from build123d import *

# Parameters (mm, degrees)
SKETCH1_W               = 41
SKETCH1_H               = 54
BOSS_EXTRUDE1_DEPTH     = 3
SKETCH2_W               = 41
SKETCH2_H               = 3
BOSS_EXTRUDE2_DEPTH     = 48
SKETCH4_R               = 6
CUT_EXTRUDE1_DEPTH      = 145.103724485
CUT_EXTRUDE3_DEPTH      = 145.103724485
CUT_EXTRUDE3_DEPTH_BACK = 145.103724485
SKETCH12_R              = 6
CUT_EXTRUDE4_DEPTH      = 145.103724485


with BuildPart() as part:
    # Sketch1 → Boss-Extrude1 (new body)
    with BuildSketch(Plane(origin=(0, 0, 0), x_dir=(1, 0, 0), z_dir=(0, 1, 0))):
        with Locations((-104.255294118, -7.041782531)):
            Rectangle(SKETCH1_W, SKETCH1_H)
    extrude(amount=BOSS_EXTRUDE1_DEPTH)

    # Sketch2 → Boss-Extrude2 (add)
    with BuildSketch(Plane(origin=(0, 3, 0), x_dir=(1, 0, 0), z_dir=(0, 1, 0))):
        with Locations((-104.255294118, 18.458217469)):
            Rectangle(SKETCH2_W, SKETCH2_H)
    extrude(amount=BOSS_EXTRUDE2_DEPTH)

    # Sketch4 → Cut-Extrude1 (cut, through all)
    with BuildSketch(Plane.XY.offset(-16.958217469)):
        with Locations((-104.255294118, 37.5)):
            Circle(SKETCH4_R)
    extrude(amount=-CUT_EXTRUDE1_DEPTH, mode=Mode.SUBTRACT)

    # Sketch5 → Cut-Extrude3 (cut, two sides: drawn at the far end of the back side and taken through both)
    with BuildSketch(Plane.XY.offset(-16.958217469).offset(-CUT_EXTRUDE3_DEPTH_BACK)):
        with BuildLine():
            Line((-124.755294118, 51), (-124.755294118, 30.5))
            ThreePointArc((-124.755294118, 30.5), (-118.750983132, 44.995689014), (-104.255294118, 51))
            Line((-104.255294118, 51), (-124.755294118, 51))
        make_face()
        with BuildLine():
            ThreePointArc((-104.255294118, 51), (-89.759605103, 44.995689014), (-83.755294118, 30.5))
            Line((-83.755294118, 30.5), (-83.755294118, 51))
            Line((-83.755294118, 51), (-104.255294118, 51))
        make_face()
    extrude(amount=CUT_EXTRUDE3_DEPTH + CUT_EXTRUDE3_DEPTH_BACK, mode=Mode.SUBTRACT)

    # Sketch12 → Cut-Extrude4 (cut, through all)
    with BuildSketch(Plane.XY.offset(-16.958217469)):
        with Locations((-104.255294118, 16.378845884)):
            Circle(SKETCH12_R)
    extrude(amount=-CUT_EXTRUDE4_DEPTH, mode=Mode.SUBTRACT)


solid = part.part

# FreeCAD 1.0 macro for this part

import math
import FreeCAD as App
import Part
import Sketcher
from FreeCAD import Vector


def add_polygon(sketch, points):
    """Adds a closed chain of lines whose ends are joined by coincident constraints."""
    first, n = sketch.GeometryCount, len(points)
    for a, b in zip(points, points[1:] + points[:1]):
        sketch.addGeometry(Part.LineSegment(App.Vector(*a, 0), App.Vector(*b, 0)), False)
    for i in range(n):
        sketch.addConstraint(Sketcher.Constraint("Coincident", first + i, 2, first + (i + 1) % n, 1))

doc = App.newDocument("Part")
params = doc.addObject("Spreadsheet::Sheet", "Params")
for row, (alias, value) in enumerate([
    ("sketch1_width", "41 mm"),
    ("sketch1_height", "54 mm"),
    ("pad1_length", "3 mm"),
    ("sketch2_width", "41 mm"),
    ("sketch2_height", "3 mm"),
    ("pad2_length", "48 mm"),
    ("sketch3_diameter", "12 mm"),
    ("sketch4_radius", "20.5 mm"),
    ("sketch5_diameter", "12 mm"),
], start=1):
    params.set(f"A{row}", alias)
    params.set(f"B{row}", "=" + value)
    params.setAlias(f"B{row}", alias)

body = doc.addObject("PartDesign::Body", "Body")

sketch1 = doc.addObject("Sketcher::SketchObject", "Sketch")
body.addObject(sketch1)
sketch1.AttachmentSupport = (doc.XZ_Plane, [""])
sketch1.MapMode = "FlatFace"
add_polygon(sketch1, [(-125, -20), (-125, 34), (-84, 34), (-84, -20)])
sketch1.addConstraint([
    Sketcher.Constraint("Vertical", 0),
    Sketcher.Constraint("Horizontal", 1),
    Sketcher.Constraint("Vertical", 2),
    Sketcher.Constraint("Horizontal", 3),
    Sketcher.Constraint("DistanceX", 1, 1, 1, 2, 41.0),
    Sketcher.Constraint("DistanceY", 0, 1, 0, 2, 54.0),
    Sketcher.Constraint("DistanceX", 0, 2, -1, 1, 124.755294),
    Sketcher.Constraint("DistanceY", -1, 1, 0, 2, 34.041783),
])
sketch1.setExpression("Constraints[8]", "Params.sketch1_width")
sketch1.setExpression("Constraints[9]", "Params.sketch1_height")
pad1 = doc.addObject("PartDesign::Pad", "Pad")
body.addObject(pad1)
pad1.Profile = sketch1
pad1.setExpression("Length", "Params.pad1_length")
pad1.Reversed = True

sketch2 = doc.addObject("Sketcher::SketchObject", "Sketch001")
body.addObject(sketch2)
sketch2.AttachmentSupport = (doc.XZ_Plane, [""])
sketch2.MapMode = "FlatFace"
sketch2.AttachmentOffset = App.Placement(Vector(0, 0, -3), App.Rotation())
add_polygon(sketch2, [(-124.8, -20), (-124.8, -17), (-83.8, -17), (-83.8, -20)])
sketch2.addConstraint([
    Sketcher.Constraint("Vertical", 0),
    Sketcher.Constraint("Horizontal", 1),
    Sketcher.Constraint("Vertical", 2),
    Sketcher.Constraint("Horizontal", 3),
    Sketcher.Constraint("DistanceX", 1, 1, 1, 2, 41.0),
    Sketcher.Constraint("DistanceY", 0, 1, 0, 2, 3.0),
    Sketcher.Constraint("DistanceX", 0, 2, -1, 1, 124.755294),
    Sketcher.Constraint("DistanceY", 0, 2, -1, 1, 16.958217),
])
sketch2.setExpression("Constraints[8]", "Params.sketch2_width")
sketch2.setExpression("Constraints[9]", "Params.sketch2_height")
pad2 = doc.addObject("PartDesign::Pad", "Pad001")
body.addObject(pad2)
pad2.Profile = sketch2
pad2.setExpression("Length", "Params.pad2_length")
pad2.Reversed = True

sketch3 = doc.addObject("Sketcher::SketchObject", "Sketch002")
body.addObject(sketch3)
sketch3.AttachmentSupport = (doc.XY_Plane, [""])
sketch3.MapMode = "FlatFace"
sketch3.AttachmentOffset = App.Placement(Vector(0, 0, -16.958217), App.Rotation())
sketch3.addGeometry(Part.Circle(Vector(-104, 38, 0), Vector(0, 0, 1), 6), False)
sketch3.addConstraint([
    Sketcher.Constraint("Diameter", 0, 12.0),
    Sketcher.Constraint("DistanceY", -1, 1, 0, 3, 37.5),
    Sketcher.Constraint("DistanceX", 0, 3, -1, 1, 104.255294),
])
sketch3.setExpression("Constraints[0]", "Params.sketch3_diameter")
pocket1 = doc.addObject("PartDesign::Pocket", "Pocket")
body.addObject(pocket1)
pocket1.Profile = sketch3
pocket1.Type = "ThroughAll"

sketch4 = doc.addObject("Sketcher::SketchObject", "Sketch003")
body.addObject(sketch4)
sketch4.AttachmentSupport = (doc.XY_Plane, [""])
sketch4.MapMode = "FlatFace"
sketch4.AttachmentOffset = App.Placement(Vector(0, 0, -16.958217), App.Rotation())
sketch4.addGeometry([
    Part.LineSegment(Vector(-125, 51, 0), Vector(-125, 30, 0)),
    Part.ArcOfCircle(Part.Circle(Vector(-104, 30, 0), Vector(0, 0, 1), 21), math.radians(90), math.radians(180)),
    Part.LineSegment(Vector(-104, 51, 0), Vector(-125, 51, 0)),
    Part.ArcOfCircle(Part.Circle(Vector(-104, 31, 0), Vector(0, 0, 1), 20), math.radians(0), math.radians(90)),
    Part.LineSegment(Vector(-84, 30, 0), Vector(-84, 51, 0)),
    Part.LineSegment(Vector(-84, 51, 0), Vector(-104, 51, 0)),
], False)
sketch4.addConstraint([
    Sketcher.Constraint("Tangent", 0, 2, 1, 2),
    Sketcher.Constraint("Tangent", 1, 1, 2, 1),
    Sketcher.Constraint("Coincident", 2, 2, 0, 1),
    Sketcher.Constraint("Tangent", 3, 1, 4, 1),
    Sketcher.Constraint("Coincident", 4, 2, 5, 1),
    Sketcher.Constraint("Tangent", 5, 2, 3, 2),
    Sketcher.Constraint("Vertical", 0),
    Sketcher.Constraint("Horizontal", 2),
    Sketcher.Constraint("Vertical", 4),
    Sketcher.Constraint("Horizontal", 5),
    Sketcher.Constraint("Coincident", 3, 3, 1, 3),
    Sketcher.Constraint("Equal", 1, 3),
    Sketcher.Constraint("Radius", 1, 20.5),
    Sketcher.Constraint("DistanceY", -1, 1, 1, 1, 51.0),
    Sketcher.Constraint("DistanceX", 1, 3, -1, 1, 104.255294),
])
sketch4.setExpression("Constraints[12]", "Params.sketch4_radius")
pocket2 = doc.addObject("PartDesign::Pocket", "Pocket001")
body.addObject(pocket2)
pocket2.Profile = sketch4
pocket2.Type = "ThroughAll"
pocket2.Midplane = True

sketch5 = doc.addObject("Sketcher::SketchObject", "Sketch004")
body.addObject(sketch5)
sketch5.AttachmentSupport = (doc.XY_Plane, [""])
sketch5.MapMode = "FlatFace"
sketch5.AttachmentOffset = App.Placement(Vector(0, 0, -16.958217), App.Rotation())
sketch5.addGeometry(Part.Circle(Vector(-104, 16, 0), Vector(0, 0, 1), 6), False)
sketch5.addConstraint([
    Sketcher.Constraint("Diameter", 0, 12.0),
    Sketcher.Constraint("DistanceX", 0, 3, -1, 1, 104.255294),
    Sketcher.Constraint("DistanceY", -1, 1, 0, 3, 16.378846),
])
sketch5.setExpression("Constraints[0]", "Params.sketch5_diameter")
pocket3 = doc.addObject("PartDesign::Pocket", "Pocket002")
body.addObject(pocket3)
pocket3.Profile = sketch5
pocket3.Type = "ThroughAll"

doc.recompute()
